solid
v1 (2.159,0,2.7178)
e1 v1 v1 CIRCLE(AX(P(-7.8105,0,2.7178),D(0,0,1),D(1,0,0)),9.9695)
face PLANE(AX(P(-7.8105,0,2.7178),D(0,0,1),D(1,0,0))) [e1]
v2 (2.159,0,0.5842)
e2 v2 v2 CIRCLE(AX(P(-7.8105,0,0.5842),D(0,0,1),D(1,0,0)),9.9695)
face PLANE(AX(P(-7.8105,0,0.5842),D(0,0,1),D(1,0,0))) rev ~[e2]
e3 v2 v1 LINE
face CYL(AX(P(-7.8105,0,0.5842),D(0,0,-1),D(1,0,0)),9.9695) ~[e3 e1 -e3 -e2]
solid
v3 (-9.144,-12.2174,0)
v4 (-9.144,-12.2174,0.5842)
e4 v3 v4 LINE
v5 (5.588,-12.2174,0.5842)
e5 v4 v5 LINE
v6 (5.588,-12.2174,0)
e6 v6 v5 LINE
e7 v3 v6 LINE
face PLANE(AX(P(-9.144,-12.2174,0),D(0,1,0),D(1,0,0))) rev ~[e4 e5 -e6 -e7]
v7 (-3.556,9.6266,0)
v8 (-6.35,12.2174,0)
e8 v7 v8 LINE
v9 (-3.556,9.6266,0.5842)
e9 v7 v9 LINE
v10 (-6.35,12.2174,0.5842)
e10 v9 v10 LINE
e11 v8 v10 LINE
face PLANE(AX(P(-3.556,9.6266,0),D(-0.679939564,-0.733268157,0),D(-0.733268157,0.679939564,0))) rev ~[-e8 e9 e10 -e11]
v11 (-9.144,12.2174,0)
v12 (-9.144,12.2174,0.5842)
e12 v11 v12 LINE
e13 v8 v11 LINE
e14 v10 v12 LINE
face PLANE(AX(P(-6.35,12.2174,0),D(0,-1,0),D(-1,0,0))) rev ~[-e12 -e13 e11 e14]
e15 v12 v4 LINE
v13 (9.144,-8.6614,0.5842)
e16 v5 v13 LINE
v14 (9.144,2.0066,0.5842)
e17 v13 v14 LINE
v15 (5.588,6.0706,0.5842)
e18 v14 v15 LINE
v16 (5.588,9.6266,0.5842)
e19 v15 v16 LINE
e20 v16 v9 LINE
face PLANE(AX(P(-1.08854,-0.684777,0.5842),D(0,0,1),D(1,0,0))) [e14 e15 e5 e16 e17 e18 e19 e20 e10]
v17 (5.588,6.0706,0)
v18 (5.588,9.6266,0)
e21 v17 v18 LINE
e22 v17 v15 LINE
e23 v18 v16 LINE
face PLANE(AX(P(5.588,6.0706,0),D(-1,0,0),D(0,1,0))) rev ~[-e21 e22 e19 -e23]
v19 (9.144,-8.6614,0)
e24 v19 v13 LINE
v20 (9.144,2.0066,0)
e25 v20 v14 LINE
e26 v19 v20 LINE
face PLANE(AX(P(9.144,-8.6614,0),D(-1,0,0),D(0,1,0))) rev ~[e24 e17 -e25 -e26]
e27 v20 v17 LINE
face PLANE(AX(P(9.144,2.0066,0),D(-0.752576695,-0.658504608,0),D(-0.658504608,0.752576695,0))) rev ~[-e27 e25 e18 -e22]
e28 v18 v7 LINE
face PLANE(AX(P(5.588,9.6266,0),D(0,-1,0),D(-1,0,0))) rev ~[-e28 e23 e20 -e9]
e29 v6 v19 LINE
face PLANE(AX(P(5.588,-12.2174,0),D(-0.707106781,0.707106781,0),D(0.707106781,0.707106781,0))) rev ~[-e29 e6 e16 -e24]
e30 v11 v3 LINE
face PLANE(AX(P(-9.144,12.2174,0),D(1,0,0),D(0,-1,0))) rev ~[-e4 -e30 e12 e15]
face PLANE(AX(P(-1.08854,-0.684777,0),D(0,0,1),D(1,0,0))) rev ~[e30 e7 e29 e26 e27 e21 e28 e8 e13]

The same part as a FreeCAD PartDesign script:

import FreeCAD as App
import Part
import Sketcher

V = App.Vector
Q = App.Units.Quantity

doc = App.newDocument("Part")
body = doc.addObject("PartDesign::Body", "Body")

# Sketch on XY plane
sketch1 = body.newObject("Sketcher::SketchObject", "Sketch")
sketch1.AttachmentSupport = (doc.getObject("XY_Plane"), [""])
sketch1.MapMode = "FlatFace"
sketch1.addGeometry(Part.LineSegment(V(-9.144, 12.2174, 0), V(-9.144, -12.2174, 0)), False)
sketch1.addGeometry(Part.LineSegment(V(-9.144, -12.2174, 0), V(5.588, -12.2174, 0)), False)
sketch1.addGeometry(Part.LineSegment(V(5.588, -12.2174, 0), V(9.144, -8.6614, 0)), False)
sketch1.addGeometry(Part.LineSegment(V(9.144, -8.6614, 0), V(9.144, 2.0066, 0)), False)
sketch1.addGeometry(Part.LineSegment(V(9.144, 2.0066, 0), V(5.588, 6.0706, 0)), False)
sketch1.addGeometry(Part.LineSegment(V(5.588, 6.0706, 0), V(5.588, 9.6266, 0)), False)
sketch1.addGeometry(Part.LineSegment(V(5.588, 9.6266, 0), V(-3.556, 9.6266, 0)), False)
sketch1.addGeometry(Part.LineSegment(V(-3.556, 9.6266, 0), V(-6.35, 12.2174, 0)), False)
sketch1.addGeometry(Part.LineSegment(V(-6.35, 12.2174, 0), V(-9.144, 12.2174, 0)), False)
sketch1.addConstraint(Sketcher.Constraint("Coincident", 0, 2, 1, 1))
sketch1.addConstraint(Sketcher.Constraint("Coincident", 1, 2, 2, 1))
sketch1.addConstraint(Sketcher.Constraint("Coincident", 2, 2, 3, 1))
sketch1.addConstraint(Sketcher.Constraint("Coincident", 3, 2, 4, 1))
sketch1.addConstraint(Sketcher.Constraint("Coincident", 4, 2, 5, 1))
sketch1.addConstraint(Sketcher.Constraint("Coincident", 5, 2, 6, 1))
sketch1.addConstraint(Sketcher.Constraint("Coincident", 6, 2, 7, 1))
sketch1.addConstraint(Sketcher.Constraint("Coincident", 7, 2, 8, 1))
sketch1.addConstraint(Sketcher.Constraint("Coincident", 8, 2, 0, 1))
sketch1.addConstraint(Sketcher.Constraint("Vertical", 0))
sketch1.addConstraint(Sketcher.Constraint("Horizontal", 1))
sketch1.addConstraint(Sketcher.Constraint("Vertical", 3))
sketch1.addConstraint(Sketcher.Constraint("Vertical", 5))
sketch1.addConstraint(Sketcher.Constraint("Horizontal", 6))
sketch1.addConstraint(Sketcher.Constraint("Horizontal", 8))
sketch1.addConstraint(Sketcher.Constraint("Vertical", 1, 2, 4, 2))
sketch1.addConstraint(Sketcher.Constraint("Angle", 2, Q("45 deg")))
sketch1.addConstraint(Sketcher.Constraint("DistanceX", 1, 1, 1, 2, Q("0.58 in")))
sketch1.addConstraint(Sketcher.Constraint("DistanceX", 6, 2, 6, 1, Q("0.36 in")))
sketch1.addConstraint(Sketcher.Constraint("DistanceX", 8, 2, 8, 1, Q("0.11 in")))
sketch1.addConstraint(Sketcher.Constraint("DistanceY", 3, 1, 3, 2, Q("0.42 in")))
sketch1.addConstraint(Sketcher.Constraint("DistanceY", 5, 1, 5, 2, Q("0.14 in")))
sketch1.addConstraint(Sketcher.Constraint("DistanceY", 3, 2, 5, 2, Q("0.3 in")))
sketch1.addConstraint(Sketcher.Constraint("DistanceX", 6, 2, 3, 2, Q("0.5 in")))
sketch1.addConstraint(Sketcher.Constraint("DistanceY", 0, 2, 0, 1, Q("0.962 in")))
sketch1.addConstraint(Sketcher.Constraint("DistanceX", 0, 2, -1, 1, Q("0.36 in")))
sketch1.addConstraint(Sketcher.Constraint("DistanceY", 0, 2, -1, 1, Q("0.481 in")))
pad1 = body.newObject("PartDesign::Pad", "Pad")
pad1.Profile = sketch1
pad1.Length = Q("0.023 in")
body2 = doc.addObject("PartDesign::Body", "Body001")

# Sketch on XY plane
sketch2 = body2.newObject("Sketcher::SketchObject", "Sketch001")
sketch2.AttachmentSupport = (doc.getObject("XY_Plane001"), [""])
sketch2.MapMode = "FlatFace"
sketch2.AttachmentOffset = App.Placement(V(0, 0, 0.023 * 25.4), App.Rotation())
sketch2.addGeometry(Part.Circle(V(-7.8105, 0, 0), V(0, 0, 1), 9.9695), False)
sketch2.addConstraint(Sketcher.Constraint("PointOnObject", 0, 3, -1))
sketch2.addConstraint(Sketcher.Constraint("Diameter", 0, Q("0.785 in")))
sketch2.addConstraint(Sketcher.Constraint("DistanceX", 0, 3, -1, 1, Q("0.3075 in")))
pad2 = body2.newObject("PartDesign::Pad", "Pad001")
pad2.Profile = sketch2
pad2.Length = Q("0.084 in")

doc.recompute()
